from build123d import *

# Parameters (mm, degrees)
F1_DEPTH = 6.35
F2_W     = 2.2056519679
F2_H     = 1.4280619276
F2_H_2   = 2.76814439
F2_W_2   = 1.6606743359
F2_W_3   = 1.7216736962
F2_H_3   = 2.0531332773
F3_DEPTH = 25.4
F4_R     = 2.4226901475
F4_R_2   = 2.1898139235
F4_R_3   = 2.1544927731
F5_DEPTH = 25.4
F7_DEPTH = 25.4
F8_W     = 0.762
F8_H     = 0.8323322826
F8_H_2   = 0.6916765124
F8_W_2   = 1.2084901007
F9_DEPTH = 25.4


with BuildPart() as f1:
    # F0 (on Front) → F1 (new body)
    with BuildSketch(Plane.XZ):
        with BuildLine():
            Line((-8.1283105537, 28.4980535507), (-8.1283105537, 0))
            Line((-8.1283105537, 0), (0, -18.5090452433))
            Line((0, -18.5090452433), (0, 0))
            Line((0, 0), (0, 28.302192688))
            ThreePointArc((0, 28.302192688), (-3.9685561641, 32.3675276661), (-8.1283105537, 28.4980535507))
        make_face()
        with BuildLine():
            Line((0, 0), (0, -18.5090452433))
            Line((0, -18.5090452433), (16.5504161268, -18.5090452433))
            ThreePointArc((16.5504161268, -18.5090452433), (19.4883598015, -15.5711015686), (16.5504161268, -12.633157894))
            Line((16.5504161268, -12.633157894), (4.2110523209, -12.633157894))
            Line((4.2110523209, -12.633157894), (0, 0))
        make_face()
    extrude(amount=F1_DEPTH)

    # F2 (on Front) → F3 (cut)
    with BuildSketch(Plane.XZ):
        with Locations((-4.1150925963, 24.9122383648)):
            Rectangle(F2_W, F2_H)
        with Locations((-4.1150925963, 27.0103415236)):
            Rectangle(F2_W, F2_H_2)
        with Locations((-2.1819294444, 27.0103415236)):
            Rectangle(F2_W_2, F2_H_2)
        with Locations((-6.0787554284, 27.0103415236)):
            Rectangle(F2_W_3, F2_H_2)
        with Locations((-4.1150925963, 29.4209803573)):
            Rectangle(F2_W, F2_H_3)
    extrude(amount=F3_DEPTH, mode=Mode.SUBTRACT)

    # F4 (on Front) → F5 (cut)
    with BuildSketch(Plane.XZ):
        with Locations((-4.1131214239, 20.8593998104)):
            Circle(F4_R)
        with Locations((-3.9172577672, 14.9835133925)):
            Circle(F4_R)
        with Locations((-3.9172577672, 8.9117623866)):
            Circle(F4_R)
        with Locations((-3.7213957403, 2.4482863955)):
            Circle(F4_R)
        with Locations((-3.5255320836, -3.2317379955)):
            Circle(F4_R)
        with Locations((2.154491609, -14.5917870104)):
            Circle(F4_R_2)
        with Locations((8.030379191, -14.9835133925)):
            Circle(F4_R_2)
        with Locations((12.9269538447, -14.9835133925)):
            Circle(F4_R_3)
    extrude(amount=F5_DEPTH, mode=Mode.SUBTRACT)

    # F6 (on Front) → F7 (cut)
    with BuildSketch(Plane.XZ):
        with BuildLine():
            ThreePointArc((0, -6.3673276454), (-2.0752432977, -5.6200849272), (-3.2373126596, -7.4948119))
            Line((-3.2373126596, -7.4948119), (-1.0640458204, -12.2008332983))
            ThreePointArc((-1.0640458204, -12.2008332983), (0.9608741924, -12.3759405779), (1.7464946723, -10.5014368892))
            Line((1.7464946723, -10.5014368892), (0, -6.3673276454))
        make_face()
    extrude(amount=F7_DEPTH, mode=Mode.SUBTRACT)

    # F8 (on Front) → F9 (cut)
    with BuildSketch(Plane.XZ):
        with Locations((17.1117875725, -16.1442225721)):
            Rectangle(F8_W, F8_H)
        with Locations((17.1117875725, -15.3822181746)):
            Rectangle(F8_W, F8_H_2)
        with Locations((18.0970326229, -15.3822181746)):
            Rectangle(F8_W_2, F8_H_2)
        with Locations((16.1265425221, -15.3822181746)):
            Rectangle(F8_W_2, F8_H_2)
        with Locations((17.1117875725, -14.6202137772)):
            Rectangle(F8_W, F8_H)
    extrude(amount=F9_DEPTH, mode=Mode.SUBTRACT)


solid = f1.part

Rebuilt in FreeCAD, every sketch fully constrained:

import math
import FreeCAD as App
import Part
import Sketcher
Q = App.Units.Quantity


def add_polygon(sketch, points):
    """Adds a closed chain of lines whose ends are joined by coincident constraints."""
    first, n = sketch.GeometryCount, len(points)
    for a, b in zip(points, points[1:] + points[:1]):
        sketch.addGeometry(Part.LineSegment(App.Vector(*a, 0), App.Vector(*b, 0)), False)
    for i in range(n):
        sketch.addConstraint(Sketcher.Constraint("Coincident", first + i, 2, first + (i + 1) % n, 1))

doc = App.newDocument("Part")
params = doc.addObject("Spreadsheet::Sheet", "Params")
for row, (alias, value) in enumerate([
    ("pad1_length", "0.25 in"),
    ("pocket1_length", "1 in"),
    ("pocket2_length", "1 in"),
    ("pocket3_length", "1 in"),
    ("sketch5_width", "0.03 in"),
    ("pocket4_length", "1 in"),
], start=1):
    params.set(f"A{row}", alias)
    params.set(f"B{row}", "=" + value)
    params.setAlias(f"B{row}", alias)

body = doc.addObject("PartDesign::Body", "Body")

# Sketch on XZ plane
sketch1 = body.newObject("Sketcher::SketchObject", "Sketch")
sketch1.AttachmentSupport = (doc.getObject("XZ_Plane"), [""])
sketch1.MapMode = "FlatFace"
sketch1.addGeometry(Part.LineSegment(App.Vector(-8.128311, 28.498054, 0), App.Vector(-8.128311, 0, 0)), False)
sketch1.addGeometry(Part.LineSegment(App.Vector(-8.128311, 0, 0), App.Vector(0, -18.509045, 0)), False)
sketch1.addGeometry(Part.LineSegment(App.Vector(0, -18.509045, 0), App.Vector(16.550416, -18.509045, 0)), False)
sketch1.addGeometry(Part.ArcOfCircle(Part.Circle(App.Vector(16.550416, -15.571102, 0), App.Vector(0, 0, 1), 2.937944), math.radians(-90), math.radians(90)), False)
sketch1.addGeometry(Part.LineSegment(App.Vector(16.550416, -12.633158, 0), App.Vector(4.211052, -12.633158, 0)), False)
sketch1.addGeometry(Part.LineSegment(App.Vector(4.211052, -12.633158, 0), App.Vector(0, 0, 0)), False)
sketch1.addGeometry(Part.LineSegment(App.Vector(0, 0, 0), App.Vector(0, 28.302193, 0)), False)
sketch1.addGeometry(Part.ArcOfCircle(Part.Circle(App.Vector(-4.066515, 28.302193, 0), App.Vector(0, 0, 1), 4.066515), math.radians(0), math.radians(177.239321)), False)
sketch1.addConstraint(Sketcher.Constraint("Coincident", 0, 2, 1, 1))
sketch1.addConstraint(Sketcher.Constraint("Coincident", 1, 2, 2, 1))
sketch1.addConstraint(Sketcher.Constraint("Tangent", 2, 2, 3, 1))
sketch1.addConstraint(Sketcher.Constraint("Tangent", 3, 2, 4, 1))
sketch1.addConstraint(Sketcher.Constraint("Coincident", 4, 2, 5, 1))
sketch1.addConstraint(Sketcher.Constraint("Coincident", 5, 2, 6, 1))
sketch1.addConstraint(Sketcher.Constraint("Tangent", 6, 2, 7, 1))
sketch1.addConstraint(Sketcher.Constraint("Coincident", 7, 2, 0, 1))
sketch1.addConstraint(Sketcher.Constraint("Vertical", 0))
sketch1.addConstraint(Sketcher.Constraint("Horizontal", 2))
sketch1.addConstraint(Sketcher.Constraint("Horizontal", 4))
sketch1.addConstraint(Sketcher.Constraint("Vertical", 6))
sketch1.addConstraint(Sketcher.Constraint("Coincident", 5, 2, -1, 1))
sketch1.addConstraint(Sketcher.Constraint("PointOnObject", 0, 2, -1))
sketch1.addConstraint(Sketcher.Constraint("PointOnObject", 1, 2, -2))
sketch1.addConstraint(Sketcher.Constraint("Radius", 3, Q("2.937944 mm")))
sketch1.addConstraint(Sketcher.Constraint("Radius", 7, Q("4.066515 mm")))
sketch1.addConstraint(Sketcher.Constraint("DistanceY", 3, 3, -1, 1, Q("15.571102 mm")))
sketch1.addConstraint(Sketcher.Constraint("DistanceX", 2, 1, 2, 2, Q("16.550416 mm")))
sketch1.addConstraint(Sketcher.Constraint("DistanceX", 4, 2, 4, 1, Q("12.339364 mm")))
sketch1.addConstraint(Sketcher.Constraint("DistanceY", 0, 2, 0, 1, Q("28.498054 mm")))
sketch1.addConstraint(Sketcher.Constraint("DistanceY", 6, 1, 6, 2, Q("28.302193 mm")))
pad1 = body.newObject("PartDesign::Pad", "Pad")
pad1.Profile = sketch1
pad1.setExpression("Length", "Params.pad1_length")

# Sketch on XZ plane
sketch2 = body.newObject("Sketcher::SketchObject", "Sketch001")
sketch2.AttachmentSupport = (doc.getObject("XZ_Plane"), [""])
sketch2.MapMode = "FlatFace"
add_polygon(sketch2, [(-5.217919, 24.198207), (-3.012267, 24.198207), (-3.012267, 25.626269), (-1.351592, 25.626269), (-1.351592, 28.394414), (-3.012267, 28.394414), (-3.012267, 30.447547), (-5.217919, 30.447547), (-5.217919, 28.394414), (-6.939592, 28.394414), (-6.939592, 25.626269), (-5.217919, 25.626269)])  # lines 0-11
sketch2.addConstraint(Sketcher.Constraint("Horizontal", 0))
sketch2.addConstraint(Sketcher.Constraint("Vertical", 1))
sketch2.addConstraint(Sketcher.Constraint("Horizontal", 2))
sketch2.addConstraint(Sketcher.Constraint("Vertical", 3))
sketch2.addConstraint(Sketcher.Constraint("Horizontal", 4))
sketch2.addConstraint(Sketcher.Constraint("Vertical", 5))
sketch2.addConstraint(Sketcher.Constraint("Horizontal", 6))
sketch2.addConstraint(Sketcher.Constraint("Vertical", 7))
sketch2.addConstraint(Sketcher.Constraint("Horizontal", 8))
sketch2.addConstraint(Sketcher.Constraint("Vertical", 9))
sketch2.addConstraint(Sketcher.Constraint("Horizontal", 10))
sketch2.addConstraint(Sketcher.Constraint("Vertical", 11))
sketch2.addConstraint(Sketcher.Constraint("Horizontal", 4, 2, 7, 2))
sketch2.addConstraint(Sketcher.Constraint("Horizontal", 2, 2, 9, 2))
sketch2.addConstraint(Sketcher.Constraint("Vertical", 1, 2, 4, 2))
sketch2.addConstraint(Sketcher.Constraint("Vertical", 7, 2, 10, 2))
sketch2.addConstraint(Sketcher.Constraint("DistanceX", 0, 1, 0, 2, Q("2.205652 mm")))
sketch2.addConstraint(Sketcher.Constraint("DistanceY", 1, 1, 1, 2, Q("1.428062 mm")))
sketch2.addConstraint(Sketcher.Constraint("DistanceX", 2, 1, 2, 2, Q("1.660674 mm")))
sketch2.addConstraint(Sketcher.Constraint("DistanceX", 8, 2, 8, 1, Q("1.721674 mm")))
sketch2.addConstraint(Sketcher.Constraint("DistanceY", 3, 1, 3, 2, Q("2.768144 mm")))
sketch2.addConstraint(Sketcher.Constraint("DistanceY", 5, 1, 5, 2, Q("2.053133 mm")))
sketch2.addConstraint(Sketcher.Constraint("DistanceY", -1, 1, 1, 2, Q("25.626269 mm")))
sketch2.addConstraint(Sketcher.Constraint("DistanceX", 6, 2, -1, 1, Q("5.217919 mm")))
pocket1 = body.newObject("PartDesign::Pocket", "Pocket")
pocket1.Profile = sketch2
pocket1.setExpression("Length", "Params.pocket1_length")
pocket1.Reversed = True

# Sketch on XZ plane
sketch3 = body.newObject("Sketcher::SketchObject", "Sketch002")
sketch3.AttachmentSupport = (doc.getObject("XZ_Plane"), [""])
sketch3.MapMode = "FlatFace"
sketch3.addGeometry(Part.Circle(App.Vector(-4.113121, 20.8594, 0), App.Vector(0, 0, 1), 2.42269), False)
sketch3.addGeometry(Part.Circle(App.Vector(-3.917258, 14.983513, 0), App.Vector(0, 0, 1), 2.42269), False)
sketch3.addGeometry(Part.Circle(App.Vector(-3.917258, 8.911762, 0), App.Vector(0, 0, 1), 2.42269), False)
sketch3.addGeometry(Part.Circle(App.Vector(-3.721396, 2.448286, 0), App.Vector(0, 0, 1), 2.42269), False)
sketch3.addGeometry(Part.Circle(App.Vector(-3.525532, -3.231738, 0), App.Vector(0, 0, 1), 2.42269), False)
sketch3.addGeometry(Part.Circle(App.Vector(2.154492, -14.591787, 0), App.Vector(0, 0, 1), 2.189814), False)
sketch3.addGeometry(Part.Circle(App.Vector(8.030379, -14.983513, 0), App.Vector(0, 0, 1), 2.189814), False)
sketch3.addGeometry(Part.Circle(App.Vector(12.926954, -14.983513, 0), App.Vector(0, 0, 1), 2.154493), False)
sketch3.addConstraint(Sketcher.Constraint("Equal", 0, 1))
sketch3.addConstraint(Sketcher.Constraint("Equal", 1, 2))
sketch3.addConstraint(Sketcher.Constraint("Equal", 2, 3))
sketch3.addConstraint(Sketcher.Constraint("Equal", 3, 4))
sketch3.addConstraint(Sketcher.Constraint("Equal", 5, 6))
sketch3.addConstraint(Sketcher.Constraint("Horizontal", 6, 3, 7, 3))
sketch3.addConstraint(Sketcher.Constraint("Vertical", 1, 3, 2, 3))
sketch3.addConstraint(Sketcher.Constraint("Diameter", 0, Q("4.84538 mm")))
sketch3.addConstraint(Sketcher.Constraint("Diameter", 5, Q("4.379628 mm")))
sketch3.addConstraint(Sketcher.Constraint("Diameter", 7, Q("4.308986 mm")))
sketch3.addConstraint(Sketcher.Constraint("DistanceY", -1, 1, 0, 3, Q("20.8594 mm")))
sketch3.addConstraint(Sketcher.Constraint("DistanceY", 4, 3, 2, 3, Q("12.1435 mm")))
sketch3.addConstraint(Sketcher.Constraint("DistanceY", 5, 3, 1, 3, Q("29.5753 mm")))
sketch3.addConstraint(Sketcher.Constraint("DistanceY", 6, 3, 3, 3, Q("17.4318 mm")))
sketch3.addConstraint(Sketcher.Constraint("DistanceX", 0, 3, -1, 1, Q("4.113121 mm")))
sketch3.addConstraint(Sketcher.Constraint("DistanceX", -1, 1, 5, 3, Q("2.154492 mm")))
sketch3.addConstraint(Sketcher.Constraint("DistanceX", -1, 1, 6, 3, Q("8.030379 mm")))
sketch3.addConstraint(Sketcher.Constraint("DistanceY", 2, 3, 1, 3, Q("6.071751 mm")))
sketch3.addConstraint(Sketcher.Constraint("DistanceX", 0, 3, 4, 3, Q("0.587589 mm")))
sketch3.addConstraint(Sketcher.Constraint("DistanceX", 2, 3, 5, 3, Q("6.071749 mm")))
sketch3.addConstraint(Sketcher.Constraint("DistanceX", 3, 3, 7, 3, Q("16.64835 mm")))
sketch3.addConstraint(Sketcher.Constraint("DistanceX", 2, 3, 7, 3, Q("16.844212 mm")))
sketch3.addConstraint(Sketcher.Constraint("DistanceY", -1, 1, 1, 3, Q("14.983513 mm")))
sketch3.addConstraint(Sketcher.Constraint("DistanceY", -1, 1, 3, 3, Q("2.448286 mm")))
pocket2 = body.newObject("PartDesign::Pocket", "Pocket001")
pocket2.Profile = sketch3
pocket2.setExpression("Length", "Params.pocket2_length")
pocket2.Reversed = True

# Sketch on XZ plane
sketch4 = body.newObject("Sketcher::SketchObject", "Sketch003")
sketch4.AttachmentSupport = (doc.getObject("XZ_Plane"), [""])
sketch4.MapMode = "FlatFace"
sketch4.addGeometry(Part.ArcOfCircle(Part.Circle(App.Vector(-1.498927, -7.274845, 0), App.Vector(0, 0, 1), 1.752247), math.radians(31.192569), math.radians(187.21162)), False)
sketch4.addGeometry(Part.LineSegment(App.Vector(-3.237313, -7.494812, 0), App.Vector(-1.064046, -12.200833, 0)), False)
sketch4.addGeometry(Part.ArcOfCircle(Part.Circle(App.Vector(0.068473, -10.900045, 0), App.Vector(0, 0, 1), 1.724716), math.radians(-131.044147), math.radians(13.362751)), False)
sketch4.addGeometry(Part.LineSegment(App.Vector(1.746495, -10.501437, 0), App.Vector(0, -6.367328, 0)), False)
sketch4.addConstraint(Sketcher.Constraint("Coincident", 0, 2, 1, 1))
sketch4.addConstraint(Sketcher.Constraint("Coincident", 1, 2, 2, 1))
sketch4.addConstraint(Sketcher.Constraint("Coincident", 2, 2, 3, 1))
sketch4.addConstraint(Sketcher.Constraint("Coincident", 3, 2, 0, 1))
sketch4.addConstraint(Sketcher.Constraint("PointOnObject", 3, 2, -2))
sketch4.addConstraint(Sketcher.Constraint("Radius", 0, Q("1.752247 mm")))
sketch4.addConstraint(Sketcher.Constraint("Radius", 2, Q("1.724716 mm")))
sketch4.addConstraint(Sketcher.Constraint("Distance", 1, Q("5.183602 mm")))
sketch4.addConstraint(Sketcher.Constraint("DistanceX", 0, 3, 2, 3, Q("1.5674 mm")))
sketch4.addConstraint(Sketcher.Constraint("DistanceY", 2, 3, 0, 3, Q("3.625201 mm")))
sketch4.addConstraint(Sketcher.Constraint("DistanceY", 0, 2, -1, 1, Q("7.494812 mm")))
sketch4.addConstraint(Sketcher.Constraint("DistanceX", 1, 2, 2, 3, Q("1.132518 mm")))
sketch4.addConstraint(Sketcher.Constraint("DistanceY", 2, 3, 2, 2, Q("0.398609 mm")))
sketch4.addConstraint(Sketcher.Constraint("DistanceY", 2, 2, 3, 2, Q("4.134109 mm")))
pocket3 = body.newObject("PartDesign::Pocket", "Pocket002")
pocket3.Profile = sketch4
pocket3.setExpression("Length", "Params.pocket3_length")
pocket3.Reversed = True

# Sketch on XZ plane
sketch5 = body.newObject("Sketcher::SketchObject", "Sketch004")
sketch5.AttachmentSupport = (doc.getObject("XZ_Plane"), [""])
sketch5.MapMode = "FlatFace"
add_polygon(sketch5, [(16.730788, -16.560389), (17.492788, -16.560389), (17.492788, -15.728056), (18.701278, -15.728056), (18.701278, -15.03638), (17.492788, -15.03638), (17.492788, -14.204048), (16.730788, -14.204048), (16.730788, -15.03638), (15.522297, -15.03638), (15.522297, -15.728056), (16.730788, -15.728056)])  # lines 0-11
sketch5.addConstraint(Sketcher.Constraint("Horizontal", 0))
sketch5.addConstraint(Sketcher.Constraint("Vertical", 1))
sketch5.addConstraint(Sketcher.Constraint("Horizontal", 2))
sketch5.addConstraint(Sketcher.Constraint("Vertical", 3))
sketch5.addConstraint(Sketcher.Constraint("Horizontal", 4))
sketch5.addConstraint(Sketcher.Constraint("Vertical", 5))
sketch5.addConstraint(Sketcher.Constraint("Horizontal", 6))
sketch5.addConstraint(Sketcher.Constraint("Vertical", 7))
sketch5.addConstraint(Sketcher.Constraint("Horizontal", 8))
sketch5.addConstraint(Sketcher.Constraint("Vertical", 9))
sketch5.addConstraint(Sketcher.Constraint("Horizontal", 10))
sketch5.addConstraint(Sketcher.Constraint("Vertical", 11))
sketch5.addConstraint(Sketcher.Constraint("Horizontal", 4, 2, 7, 2))
sketch5.addConstraint(Sketcher.Constraint("Horizontal", 2, 2, 9, 2))
sketch5.addConstraint(Sketcher.Constraint("Vertical", 1, 2, 4, 2))
sketch5.addConstraint(Sketcher.Constraint("Vertical", 7, 2, 10, 2))
sketch5.addConstraint(Sketcher.Constraint("Equal", 4, 8))
sketch5.addConstraint(Sketcher.Constraint("Equal", 1, 5))
sketch5.addConstraint(Sketcher.Constraint("DistanceX", 0, 1, 0, 2, Q("0.03 in")))
sketch5.addConstraint(Sketcher.Constraint("DistanceX", 2, 1, 2, 2, Q("1.20849 mm")))
sketch5.addConstraint(Sketcher.Constraint("DistanceY", 1, 1, 1, 2, Q("0.832332 mm")))
sketch5.addConstraint(Sketcher.Constraint("DistanceY", 3, 1, 3, 2, Q("0.691677 mm")))
sketch5.addConstraint(Sketcher.Constraint("DistanceY", 0, 2, -1, 1, Q("16.560389 mm")))
sketch5.addConstraint(Sketcher.Constraint("DistanceX", -1, 1, 0, 2, Q("17.492788 mm")))
sketch5.setExpression("Constraints[30]", "Params.sketch5_width")
pocket4 = body.newObject("PartDesign::Pocket", "Pocket003")
pocket4.Profile = sketch5
pocket4.setExpression("Length", "Params.pocket4_length")
pocket4.Reversed = True

doc.recompute()
